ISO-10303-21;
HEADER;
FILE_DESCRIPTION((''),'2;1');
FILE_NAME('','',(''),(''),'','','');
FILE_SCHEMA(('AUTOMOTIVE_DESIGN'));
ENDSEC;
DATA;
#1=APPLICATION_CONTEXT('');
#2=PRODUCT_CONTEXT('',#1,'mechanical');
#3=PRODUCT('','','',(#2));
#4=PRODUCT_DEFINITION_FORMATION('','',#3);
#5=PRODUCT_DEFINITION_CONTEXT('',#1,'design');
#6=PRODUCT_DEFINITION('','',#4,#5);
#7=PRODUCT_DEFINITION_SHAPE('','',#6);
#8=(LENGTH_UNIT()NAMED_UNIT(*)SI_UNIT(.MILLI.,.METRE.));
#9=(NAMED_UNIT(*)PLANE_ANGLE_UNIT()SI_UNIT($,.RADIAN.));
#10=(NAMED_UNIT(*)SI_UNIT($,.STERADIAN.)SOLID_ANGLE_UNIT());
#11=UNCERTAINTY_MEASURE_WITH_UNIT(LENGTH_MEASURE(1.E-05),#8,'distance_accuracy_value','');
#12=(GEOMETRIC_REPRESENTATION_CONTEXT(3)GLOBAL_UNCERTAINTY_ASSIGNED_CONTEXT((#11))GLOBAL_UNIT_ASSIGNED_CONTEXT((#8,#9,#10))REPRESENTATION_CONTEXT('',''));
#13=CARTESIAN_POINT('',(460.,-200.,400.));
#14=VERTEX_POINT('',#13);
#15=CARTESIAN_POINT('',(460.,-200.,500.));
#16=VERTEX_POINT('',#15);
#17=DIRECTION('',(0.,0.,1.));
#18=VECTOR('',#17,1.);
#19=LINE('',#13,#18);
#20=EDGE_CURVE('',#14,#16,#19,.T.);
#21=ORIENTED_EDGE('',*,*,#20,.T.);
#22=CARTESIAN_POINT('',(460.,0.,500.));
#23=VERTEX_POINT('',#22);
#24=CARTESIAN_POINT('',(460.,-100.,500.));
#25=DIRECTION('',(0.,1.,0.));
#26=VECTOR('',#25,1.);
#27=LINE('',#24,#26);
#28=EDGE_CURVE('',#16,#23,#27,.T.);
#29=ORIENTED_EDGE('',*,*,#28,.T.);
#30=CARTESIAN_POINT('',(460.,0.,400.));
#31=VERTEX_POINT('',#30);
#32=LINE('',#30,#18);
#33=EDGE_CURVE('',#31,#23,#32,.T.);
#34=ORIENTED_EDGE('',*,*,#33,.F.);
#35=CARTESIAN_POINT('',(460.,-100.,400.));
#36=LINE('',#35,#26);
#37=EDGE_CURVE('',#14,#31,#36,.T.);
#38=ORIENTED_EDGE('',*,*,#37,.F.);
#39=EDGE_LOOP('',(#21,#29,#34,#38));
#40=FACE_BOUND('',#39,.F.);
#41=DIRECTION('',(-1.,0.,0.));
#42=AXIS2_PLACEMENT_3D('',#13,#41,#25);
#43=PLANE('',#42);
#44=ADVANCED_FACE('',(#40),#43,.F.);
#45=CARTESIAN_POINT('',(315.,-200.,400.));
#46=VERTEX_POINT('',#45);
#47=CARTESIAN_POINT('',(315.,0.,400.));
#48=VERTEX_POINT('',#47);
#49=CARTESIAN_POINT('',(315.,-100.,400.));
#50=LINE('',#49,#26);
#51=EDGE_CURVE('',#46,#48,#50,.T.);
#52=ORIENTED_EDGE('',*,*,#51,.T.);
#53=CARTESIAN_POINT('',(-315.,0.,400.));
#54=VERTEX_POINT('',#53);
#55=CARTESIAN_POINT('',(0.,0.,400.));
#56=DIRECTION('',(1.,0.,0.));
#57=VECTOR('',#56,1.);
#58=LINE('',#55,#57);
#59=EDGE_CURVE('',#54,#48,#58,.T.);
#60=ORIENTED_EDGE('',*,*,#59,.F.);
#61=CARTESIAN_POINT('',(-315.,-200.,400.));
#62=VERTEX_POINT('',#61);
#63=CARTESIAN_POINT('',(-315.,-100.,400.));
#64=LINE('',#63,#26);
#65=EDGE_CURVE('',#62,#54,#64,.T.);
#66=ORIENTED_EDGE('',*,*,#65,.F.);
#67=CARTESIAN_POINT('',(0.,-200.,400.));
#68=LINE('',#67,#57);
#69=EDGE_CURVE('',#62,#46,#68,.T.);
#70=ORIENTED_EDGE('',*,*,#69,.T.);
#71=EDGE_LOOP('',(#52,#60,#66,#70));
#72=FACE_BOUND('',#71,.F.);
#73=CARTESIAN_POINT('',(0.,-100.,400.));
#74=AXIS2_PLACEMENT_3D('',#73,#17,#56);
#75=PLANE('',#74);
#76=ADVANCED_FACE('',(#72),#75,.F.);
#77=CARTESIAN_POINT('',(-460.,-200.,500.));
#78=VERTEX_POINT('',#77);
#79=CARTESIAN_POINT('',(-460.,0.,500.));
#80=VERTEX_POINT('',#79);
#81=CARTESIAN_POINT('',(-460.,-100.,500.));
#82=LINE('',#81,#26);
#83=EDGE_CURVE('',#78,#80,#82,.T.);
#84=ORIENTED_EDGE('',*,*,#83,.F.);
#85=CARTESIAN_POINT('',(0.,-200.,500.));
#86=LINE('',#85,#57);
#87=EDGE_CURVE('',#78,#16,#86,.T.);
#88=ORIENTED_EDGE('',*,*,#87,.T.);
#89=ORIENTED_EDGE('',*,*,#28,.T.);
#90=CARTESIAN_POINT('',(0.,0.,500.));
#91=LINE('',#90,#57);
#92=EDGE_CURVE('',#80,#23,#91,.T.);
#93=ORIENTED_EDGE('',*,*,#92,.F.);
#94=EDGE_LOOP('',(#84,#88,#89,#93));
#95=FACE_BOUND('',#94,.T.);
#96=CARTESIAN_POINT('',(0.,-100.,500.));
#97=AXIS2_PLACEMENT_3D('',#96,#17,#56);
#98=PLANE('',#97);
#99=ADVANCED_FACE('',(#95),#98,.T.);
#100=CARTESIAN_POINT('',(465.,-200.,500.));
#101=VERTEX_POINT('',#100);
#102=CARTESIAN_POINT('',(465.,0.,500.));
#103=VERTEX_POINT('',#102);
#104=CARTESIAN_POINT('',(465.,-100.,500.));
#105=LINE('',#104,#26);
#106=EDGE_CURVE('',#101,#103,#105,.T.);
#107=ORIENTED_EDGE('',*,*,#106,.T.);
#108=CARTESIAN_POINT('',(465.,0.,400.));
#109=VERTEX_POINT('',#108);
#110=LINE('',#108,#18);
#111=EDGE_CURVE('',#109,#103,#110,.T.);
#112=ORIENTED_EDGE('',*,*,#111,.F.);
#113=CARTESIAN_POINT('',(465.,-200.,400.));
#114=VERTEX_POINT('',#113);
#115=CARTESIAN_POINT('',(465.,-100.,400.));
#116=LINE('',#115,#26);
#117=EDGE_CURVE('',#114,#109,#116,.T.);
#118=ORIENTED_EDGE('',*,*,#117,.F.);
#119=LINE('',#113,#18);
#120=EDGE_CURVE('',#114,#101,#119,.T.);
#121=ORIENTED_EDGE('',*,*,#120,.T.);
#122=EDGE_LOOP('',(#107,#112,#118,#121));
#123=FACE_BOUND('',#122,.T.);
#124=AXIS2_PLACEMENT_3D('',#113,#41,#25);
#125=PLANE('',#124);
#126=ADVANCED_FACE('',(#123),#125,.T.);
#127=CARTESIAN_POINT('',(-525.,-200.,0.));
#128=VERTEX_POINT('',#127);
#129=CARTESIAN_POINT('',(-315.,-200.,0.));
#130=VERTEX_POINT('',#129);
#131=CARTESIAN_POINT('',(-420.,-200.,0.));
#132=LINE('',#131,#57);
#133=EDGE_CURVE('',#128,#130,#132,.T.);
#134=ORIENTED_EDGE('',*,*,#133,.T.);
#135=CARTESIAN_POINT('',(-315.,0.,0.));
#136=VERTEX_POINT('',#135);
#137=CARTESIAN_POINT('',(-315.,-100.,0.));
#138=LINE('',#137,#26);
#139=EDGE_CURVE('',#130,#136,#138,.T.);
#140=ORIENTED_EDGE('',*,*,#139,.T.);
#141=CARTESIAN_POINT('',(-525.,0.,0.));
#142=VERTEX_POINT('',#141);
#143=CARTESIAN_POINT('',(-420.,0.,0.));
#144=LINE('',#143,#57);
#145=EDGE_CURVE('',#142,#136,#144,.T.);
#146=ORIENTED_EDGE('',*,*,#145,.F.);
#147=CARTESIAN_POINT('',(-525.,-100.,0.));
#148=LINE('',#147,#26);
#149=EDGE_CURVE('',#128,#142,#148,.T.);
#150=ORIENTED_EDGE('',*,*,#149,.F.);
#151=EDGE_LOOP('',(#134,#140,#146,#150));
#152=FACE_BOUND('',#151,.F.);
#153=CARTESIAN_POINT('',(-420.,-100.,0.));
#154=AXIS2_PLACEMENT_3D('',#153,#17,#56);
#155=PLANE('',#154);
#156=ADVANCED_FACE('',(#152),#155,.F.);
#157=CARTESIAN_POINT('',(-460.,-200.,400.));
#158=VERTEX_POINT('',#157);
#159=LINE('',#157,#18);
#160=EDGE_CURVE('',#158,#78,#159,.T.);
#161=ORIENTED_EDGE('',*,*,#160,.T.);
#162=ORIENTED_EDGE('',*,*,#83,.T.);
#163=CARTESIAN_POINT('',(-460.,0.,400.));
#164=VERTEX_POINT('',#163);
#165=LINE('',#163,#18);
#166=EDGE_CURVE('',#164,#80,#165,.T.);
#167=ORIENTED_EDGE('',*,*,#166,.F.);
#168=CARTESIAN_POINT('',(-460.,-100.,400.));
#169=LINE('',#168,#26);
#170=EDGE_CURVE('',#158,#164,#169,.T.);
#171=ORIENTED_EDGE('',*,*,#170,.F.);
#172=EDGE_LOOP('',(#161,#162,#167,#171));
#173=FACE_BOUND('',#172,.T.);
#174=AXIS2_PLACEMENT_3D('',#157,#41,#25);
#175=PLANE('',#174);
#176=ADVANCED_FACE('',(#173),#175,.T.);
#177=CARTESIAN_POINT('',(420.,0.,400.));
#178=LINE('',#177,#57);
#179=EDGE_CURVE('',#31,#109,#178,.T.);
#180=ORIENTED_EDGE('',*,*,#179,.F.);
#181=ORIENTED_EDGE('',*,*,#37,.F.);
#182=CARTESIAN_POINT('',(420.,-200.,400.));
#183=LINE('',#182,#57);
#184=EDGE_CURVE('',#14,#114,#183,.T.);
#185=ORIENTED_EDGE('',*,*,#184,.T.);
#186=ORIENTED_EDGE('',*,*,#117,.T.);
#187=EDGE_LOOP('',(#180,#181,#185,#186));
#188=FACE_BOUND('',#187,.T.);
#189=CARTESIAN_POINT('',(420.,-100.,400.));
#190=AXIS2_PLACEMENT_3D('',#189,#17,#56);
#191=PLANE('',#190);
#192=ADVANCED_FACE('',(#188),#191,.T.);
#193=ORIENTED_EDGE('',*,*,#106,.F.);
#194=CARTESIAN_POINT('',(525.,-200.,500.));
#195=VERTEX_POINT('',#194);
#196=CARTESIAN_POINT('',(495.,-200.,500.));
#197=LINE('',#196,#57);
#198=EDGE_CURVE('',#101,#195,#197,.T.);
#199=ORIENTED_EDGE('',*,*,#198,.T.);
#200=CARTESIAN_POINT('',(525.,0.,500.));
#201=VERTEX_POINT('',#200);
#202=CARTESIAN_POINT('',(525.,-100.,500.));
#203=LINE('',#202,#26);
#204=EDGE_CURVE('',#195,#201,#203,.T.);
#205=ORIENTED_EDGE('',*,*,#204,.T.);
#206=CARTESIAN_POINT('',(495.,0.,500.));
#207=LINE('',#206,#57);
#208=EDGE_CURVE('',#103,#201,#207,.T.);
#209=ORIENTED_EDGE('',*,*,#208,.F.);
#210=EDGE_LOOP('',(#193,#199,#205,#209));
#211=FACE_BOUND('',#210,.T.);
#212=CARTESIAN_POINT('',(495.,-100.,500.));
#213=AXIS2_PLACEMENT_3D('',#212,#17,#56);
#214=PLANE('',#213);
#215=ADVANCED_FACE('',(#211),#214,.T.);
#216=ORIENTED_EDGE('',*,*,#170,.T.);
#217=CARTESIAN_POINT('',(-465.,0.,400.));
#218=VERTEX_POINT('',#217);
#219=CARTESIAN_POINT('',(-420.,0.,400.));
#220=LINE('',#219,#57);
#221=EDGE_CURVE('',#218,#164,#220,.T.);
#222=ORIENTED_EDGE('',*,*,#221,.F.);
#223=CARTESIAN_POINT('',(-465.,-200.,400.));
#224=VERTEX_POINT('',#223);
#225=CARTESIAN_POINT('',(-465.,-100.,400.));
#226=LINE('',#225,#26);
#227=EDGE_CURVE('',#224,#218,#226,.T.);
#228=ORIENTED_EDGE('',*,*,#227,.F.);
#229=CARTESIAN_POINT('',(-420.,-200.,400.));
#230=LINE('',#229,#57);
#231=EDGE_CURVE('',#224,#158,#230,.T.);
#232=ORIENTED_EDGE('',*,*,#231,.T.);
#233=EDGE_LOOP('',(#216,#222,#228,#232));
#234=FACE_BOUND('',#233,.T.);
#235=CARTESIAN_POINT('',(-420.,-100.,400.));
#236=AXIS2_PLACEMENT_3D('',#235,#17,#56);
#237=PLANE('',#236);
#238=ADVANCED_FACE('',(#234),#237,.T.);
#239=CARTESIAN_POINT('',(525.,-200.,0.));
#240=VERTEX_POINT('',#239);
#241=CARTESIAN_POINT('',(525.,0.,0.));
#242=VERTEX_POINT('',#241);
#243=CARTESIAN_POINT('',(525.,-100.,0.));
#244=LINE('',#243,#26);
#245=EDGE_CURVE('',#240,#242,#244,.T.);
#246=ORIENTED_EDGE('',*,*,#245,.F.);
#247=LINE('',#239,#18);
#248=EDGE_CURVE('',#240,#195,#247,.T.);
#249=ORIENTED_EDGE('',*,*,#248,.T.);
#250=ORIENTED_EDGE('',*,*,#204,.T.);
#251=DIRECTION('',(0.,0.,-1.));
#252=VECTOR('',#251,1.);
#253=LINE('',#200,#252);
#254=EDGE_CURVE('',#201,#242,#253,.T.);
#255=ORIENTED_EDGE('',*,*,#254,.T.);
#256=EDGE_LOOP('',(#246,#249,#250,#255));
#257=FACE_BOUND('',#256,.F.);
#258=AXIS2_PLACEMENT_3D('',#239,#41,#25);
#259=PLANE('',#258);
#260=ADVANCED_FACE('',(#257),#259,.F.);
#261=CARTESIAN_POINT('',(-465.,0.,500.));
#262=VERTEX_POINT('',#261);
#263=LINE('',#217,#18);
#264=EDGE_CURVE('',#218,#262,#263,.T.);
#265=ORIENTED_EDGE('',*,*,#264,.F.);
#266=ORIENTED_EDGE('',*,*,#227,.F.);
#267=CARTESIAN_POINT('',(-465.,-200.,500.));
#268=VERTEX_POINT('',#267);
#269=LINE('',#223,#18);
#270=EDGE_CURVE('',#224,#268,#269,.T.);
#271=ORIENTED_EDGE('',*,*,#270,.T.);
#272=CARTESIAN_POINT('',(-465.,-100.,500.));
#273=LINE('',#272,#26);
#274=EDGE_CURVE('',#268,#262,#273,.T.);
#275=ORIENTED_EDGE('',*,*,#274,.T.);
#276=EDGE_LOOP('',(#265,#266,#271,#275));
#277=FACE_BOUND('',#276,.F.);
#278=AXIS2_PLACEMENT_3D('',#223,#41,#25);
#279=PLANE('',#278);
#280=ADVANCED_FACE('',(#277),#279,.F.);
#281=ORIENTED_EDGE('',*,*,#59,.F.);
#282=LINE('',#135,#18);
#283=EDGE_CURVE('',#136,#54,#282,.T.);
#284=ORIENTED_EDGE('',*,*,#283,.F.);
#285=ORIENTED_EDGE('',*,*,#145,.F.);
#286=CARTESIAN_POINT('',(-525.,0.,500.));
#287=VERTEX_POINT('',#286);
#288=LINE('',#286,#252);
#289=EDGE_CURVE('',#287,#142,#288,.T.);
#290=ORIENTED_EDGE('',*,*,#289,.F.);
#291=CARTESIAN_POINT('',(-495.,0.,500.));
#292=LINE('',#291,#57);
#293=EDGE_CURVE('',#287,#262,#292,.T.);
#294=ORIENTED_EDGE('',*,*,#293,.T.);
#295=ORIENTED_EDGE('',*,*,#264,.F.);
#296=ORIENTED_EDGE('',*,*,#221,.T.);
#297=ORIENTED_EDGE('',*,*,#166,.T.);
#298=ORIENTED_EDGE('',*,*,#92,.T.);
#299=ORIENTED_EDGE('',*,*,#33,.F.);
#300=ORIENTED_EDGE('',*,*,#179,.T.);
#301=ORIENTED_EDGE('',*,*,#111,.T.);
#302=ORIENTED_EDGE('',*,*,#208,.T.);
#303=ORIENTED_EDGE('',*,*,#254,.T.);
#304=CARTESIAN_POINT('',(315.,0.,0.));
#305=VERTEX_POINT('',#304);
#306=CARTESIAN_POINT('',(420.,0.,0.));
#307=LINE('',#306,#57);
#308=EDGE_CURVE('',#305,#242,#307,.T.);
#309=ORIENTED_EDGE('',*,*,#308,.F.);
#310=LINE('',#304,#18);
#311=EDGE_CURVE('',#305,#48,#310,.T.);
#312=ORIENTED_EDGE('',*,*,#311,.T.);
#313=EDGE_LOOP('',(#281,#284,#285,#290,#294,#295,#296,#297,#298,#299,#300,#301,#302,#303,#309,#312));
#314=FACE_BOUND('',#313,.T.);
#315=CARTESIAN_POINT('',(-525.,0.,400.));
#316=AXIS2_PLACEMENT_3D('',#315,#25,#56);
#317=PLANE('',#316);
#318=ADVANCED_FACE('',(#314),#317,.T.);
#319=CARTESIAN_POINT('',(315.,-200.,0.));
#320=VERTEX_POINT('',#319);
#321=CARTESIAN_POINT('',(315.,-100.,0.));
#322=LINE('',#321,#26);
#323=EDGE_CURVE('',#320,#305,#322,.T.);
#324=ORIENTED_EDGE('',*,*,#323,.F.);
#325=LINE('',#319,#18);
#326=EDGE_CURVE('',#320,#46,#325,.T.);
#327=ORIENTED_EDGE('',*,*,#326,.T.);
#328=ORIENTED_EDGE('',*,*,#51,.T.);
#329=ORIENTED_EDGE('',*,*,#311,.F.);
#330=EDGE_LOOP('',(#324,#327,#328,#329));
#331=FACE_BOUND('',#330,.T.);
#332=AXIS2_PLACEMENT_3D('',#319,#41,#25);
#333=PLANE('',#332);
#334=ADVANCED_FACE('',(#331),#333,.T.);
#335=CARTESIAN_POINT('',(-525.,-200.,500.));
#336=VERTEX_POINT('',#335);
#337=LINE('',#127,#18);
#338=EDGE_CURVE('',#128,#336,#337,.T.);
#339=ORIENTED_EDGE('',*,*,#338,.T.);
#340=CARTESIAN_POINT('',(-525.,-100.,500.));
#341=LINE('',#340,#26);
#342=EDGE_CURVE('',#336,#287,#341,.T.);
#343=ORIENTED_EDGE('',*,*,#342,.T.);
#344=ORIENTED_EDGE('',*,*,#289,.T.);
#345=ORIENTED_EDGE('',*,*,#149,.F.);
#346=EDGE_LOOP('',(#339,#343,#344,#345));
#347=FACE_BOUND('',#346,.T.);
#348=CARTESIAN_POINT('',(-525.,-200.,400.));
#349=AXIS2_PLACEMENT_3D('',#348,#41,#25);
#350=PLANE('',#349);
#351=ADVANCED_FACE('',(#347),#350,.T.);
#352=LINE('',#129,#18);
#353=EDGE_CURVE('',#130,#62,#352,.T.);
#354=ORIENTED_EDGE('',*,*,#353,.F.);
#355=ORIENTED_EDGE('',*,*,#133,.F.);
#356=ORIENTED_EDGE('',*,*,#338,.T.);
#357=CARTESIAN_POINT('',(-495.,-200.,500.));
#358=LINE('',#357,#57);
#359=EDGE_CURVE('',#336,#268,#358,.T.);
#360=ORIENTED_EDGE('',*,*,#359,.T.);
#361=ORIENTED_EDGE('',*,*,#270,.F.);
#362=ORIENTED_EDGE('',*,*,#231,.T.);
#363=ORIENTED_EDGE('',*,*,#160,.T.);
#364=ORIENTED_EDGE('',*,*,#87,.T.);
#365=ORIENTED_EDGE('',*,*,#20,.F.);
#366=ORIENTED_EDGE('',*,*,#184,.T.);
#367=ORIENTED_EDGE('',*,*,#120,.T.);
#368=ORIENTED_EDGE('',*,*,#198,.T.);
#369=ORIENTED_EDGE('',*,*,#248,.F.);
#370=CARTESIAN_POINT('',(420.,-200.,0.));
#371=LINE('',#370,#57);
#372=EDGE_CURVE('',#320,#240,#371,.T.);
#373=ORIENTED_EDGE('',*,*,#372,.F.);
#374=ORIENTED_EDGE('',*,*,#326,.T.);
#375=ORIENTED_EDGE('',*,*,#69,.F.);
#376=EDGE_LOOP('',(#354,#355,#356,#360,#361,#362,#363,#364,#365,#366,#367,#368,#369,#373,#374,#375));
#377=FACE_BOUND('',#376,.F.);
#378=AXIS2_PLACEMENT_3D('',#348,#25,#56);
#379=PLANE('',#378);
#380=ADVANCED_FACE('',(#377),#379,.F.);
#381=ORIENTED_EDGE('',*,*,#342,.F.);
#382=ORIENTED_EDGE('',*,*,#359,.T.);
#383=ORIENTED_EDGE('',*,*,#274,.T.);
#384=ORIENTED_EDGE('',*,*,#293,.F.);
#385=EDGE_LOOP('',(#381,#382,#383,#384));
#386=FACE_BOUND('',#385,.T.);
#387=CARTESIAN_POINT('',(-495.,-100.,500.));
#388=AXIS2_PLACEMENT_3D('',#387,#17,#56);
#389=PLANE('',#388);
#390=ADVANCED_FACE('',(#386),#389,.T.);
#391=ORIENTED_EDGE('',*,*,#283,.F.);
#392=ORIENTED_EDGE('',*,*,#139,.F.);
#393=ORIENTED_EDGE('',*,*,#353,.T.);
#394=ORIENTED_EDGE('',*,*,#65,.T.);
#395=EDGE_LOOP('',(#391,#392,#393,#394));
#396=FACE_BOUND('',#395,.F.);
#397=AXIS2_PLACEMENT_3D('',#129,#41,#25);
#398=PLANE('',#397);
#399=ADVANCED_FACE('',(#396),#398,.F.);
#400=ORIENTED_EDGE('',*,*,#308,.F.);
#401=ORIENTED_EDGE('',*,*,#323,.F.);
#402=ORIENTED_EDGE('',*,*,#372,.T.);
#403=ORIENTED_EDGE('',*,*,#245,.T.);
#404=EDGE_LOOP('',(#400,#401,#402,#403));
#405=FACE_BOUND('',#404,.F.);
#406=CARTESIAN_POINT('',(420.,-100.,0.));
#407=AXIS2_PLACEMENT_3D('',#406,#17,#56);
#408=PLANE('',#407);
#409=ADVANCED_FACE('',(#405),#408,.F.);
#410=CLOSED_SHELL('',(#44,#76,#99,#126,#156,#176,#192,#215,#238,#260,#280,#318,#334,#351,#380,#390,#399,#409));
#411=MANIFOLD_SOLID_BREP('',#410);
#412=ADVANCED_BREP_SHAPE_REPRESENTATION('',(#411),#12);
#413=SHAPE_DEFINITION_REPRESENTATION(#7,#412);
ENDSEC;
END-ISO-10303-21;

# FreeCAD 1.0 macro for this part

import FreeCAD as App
import Part
import Sketcher
from FreeCAD import Vector
Q = App.Units.Quantity


def add_polygon(sketch, points):
    """Adds a closed chain of lines whose ends are joined by coincident constraints."""
    first, n = sketch.GeometryCount, len(points)
    for a, b in zip(points, points[1:] + points[:1]):
        sketch.addGeometry(Part.LineSegment(App.Vector(*a, 0), App.Vector(*b, 0)), False)
    for i in range(n):
        sketch.addConstraint(Sketcher.Constraint("Coincident", first + i, 2, first + (i + 1) % n, 1))

doc = App.newDocument("Part")
body = doc.addObject("PartDesign::Body", "Body")
body.AllowCompound = True

# Sketch on XY plane
sketch1 = body.newObject("Sketcher::SketchObject", "Sketch")
sketch1.AttachmentSupport = (doc.getObject("XY_Plane"), [""])
sketch1.MapMode = "FlatFace"
add_polygon(sketch1, [(-525, 0), (-525, -200), (-315, -200), (-315, 0)])  # lines 0-3
add_polygon(sketch1, [(315, 0), (315, -200), (525, -200), (525, 0)])  # lines 4-7
sketch1.addConstraint(Sketcher.Constraint("Vertical", 0))
sketch1.addConstraint(Sketcher.Constraint("Horizontal", 1))
sketch1.addConstraint(Sketcher.Constraint("Vertical", 2))
sketch1.addConstraint(Sketcher.Constraint("Horizontal", 3))
sketch1.addConstraint(Sketcher.Constraint("Vertical", 4))
sketch1.addConstraint(Sketcher.Constraint("Horizontal", 5))
sketch1.addConstraint(Sketcher.Constraint("Vertical", 6))
sketch1.addConstraint(Sketcher.Constraint("Horizontal", 7))
sketch1.addConstraint(Sketcher.Constraint("Symmetric", 3, 2, 6, 2, -1, 1))
sketch1.addConstraint(Sketcher.Constraint("Symmetric", 1, 2, 4, 2, -2))
sketch1.addConstraint(Sketcher.Constraint("PointOnObject", 2, 2, -1))
sketch1.addConstraint(Sketcher.Constraint("DistanceX", 1, 1, 1, 2, Q("210 mm")))
sketch1.addConstraint(Sketcher.Constraint("DistanceY", 0, 2, 0, 1, Q("200 mm")))
sketch1.addConstraint(Sketcher.Constraint("DistanceX", 0, 2, -1, 1, Q("525 mm")))
pad1 = body.newObject("PartDesign::Pad", "Pad")
pad1.Profile = sketch1
pad1.Length = 400

# Sketch on XY plane
sketch2 = body.newObject("Sketcher::SketchObject", "Sketch001")
sketch2.AttachmentSupport = (doc.getObject("XY_Plane"), [""])
sketch2.MapMode = "FlatFace"
sketch2.AttachmentOffset = App.Placement(Vector(0, 0, 400), App.Rotation())
add_polygon(sketch2, [(-460, 0), (-460, -200), (460, -200), (460, 0)])  # lines 0-3
sketch2.addConstraint(Sketcher.Constraint("Vertical", 0))
sketch2.addConstraint(Sketcher.Constraint("Horizontal", 1))
sketch2.addConstraint(Sketcher.Constraint("Vertical", 2))
sketch2.addConstraint(Sketcher.Constraint("Horizontal", 3))
sketch2.addConstraint(Sketcher.Constraint("Symmetric", 2, 2, 3, 2, -1, 1))
sketch2.addConstraint(Sketcher.Constraint("DistanceX", 1, 1, 1, 2, Q("920 mm")))
sketch2.addConstraint(Sketcher.Constraint("DistanceY", 0, 2, 0, 1, Q("200 mm")))
pad2 = body.newObject("PartDesign::Pad", "Pad001")
pad2.Profile = sketch2
pad2.Length = 100

# Sketch on XY plane
sketch3 = body.newObject("Sketcher::SketchObject", "Sketch002")
sketch3.AttachmentSupport = (doc.getObject("XY_Plane"), [""])
sketch3.MapMode = "FlatFace"
sketch3.AttachmentOffset = App.Placement(Vector(0, 0, 400), App.Rotation())
add_polygon(sketch3, [(-525, 0), (-525, -200), (-465, -200), (-465, 0)])  # lines 0-3
add_polygon(sketch3, [(465, 0), (465, -200), (525, -200), (525, 0)])  # lines 4-7
sketch3.addConstraint(Sketcher.Constraint("Vertical", 0))
sketch3.addConstraint(Sketcher.Constraint("Horizontal", 1))
sketch3.addConstraint(Sketcher.Constraint("Vertical", 2))
sketch3.addConstraint(Sketcher.Constraint("Horizontal", 3))
sketch3.addConstraint(Sketcher.Constraint("Vertical", 4))
sketch3.addConstraint(Sketcher.Constraint("Horizontal", 5))
sketch3.addConstraint(Sketcher.Constraint("Vertical", 6))
sketch3.addConstraint(Sketcher.Constraint("Horizontal", 7))
sketch3.addConstraint(Sketcher.Constraint("Symmetric", 3, 2, 6, 2, -1, 1))
sketch3.addConstraint(Sketcher.Constraint("Symmetric", 1, 2, 4, 2, -2))
sketch3.addConstraint(Sketcher.Constraint("PointOnObject", 2, 2, -1))
sketch3.addConstraint(Sketcher.Constraint("DistanceX", 1, 1, 1, 2, Q("60 mm")))
sketch3.addConstraint(Sketcher.Constraint("DistanceY", 0, 2, 0, 1, Q("200 mm")))
sketch3.addConstraint(Sketcher.Constraint("DistanceX", 0, 2, -1, 1, Q("525 mm")))
pad3 = body.newObject("PartDesign::Pad", "Pad002")
pad3.Profile = sketch3
pad3.Length = 100

doc.recompute()
